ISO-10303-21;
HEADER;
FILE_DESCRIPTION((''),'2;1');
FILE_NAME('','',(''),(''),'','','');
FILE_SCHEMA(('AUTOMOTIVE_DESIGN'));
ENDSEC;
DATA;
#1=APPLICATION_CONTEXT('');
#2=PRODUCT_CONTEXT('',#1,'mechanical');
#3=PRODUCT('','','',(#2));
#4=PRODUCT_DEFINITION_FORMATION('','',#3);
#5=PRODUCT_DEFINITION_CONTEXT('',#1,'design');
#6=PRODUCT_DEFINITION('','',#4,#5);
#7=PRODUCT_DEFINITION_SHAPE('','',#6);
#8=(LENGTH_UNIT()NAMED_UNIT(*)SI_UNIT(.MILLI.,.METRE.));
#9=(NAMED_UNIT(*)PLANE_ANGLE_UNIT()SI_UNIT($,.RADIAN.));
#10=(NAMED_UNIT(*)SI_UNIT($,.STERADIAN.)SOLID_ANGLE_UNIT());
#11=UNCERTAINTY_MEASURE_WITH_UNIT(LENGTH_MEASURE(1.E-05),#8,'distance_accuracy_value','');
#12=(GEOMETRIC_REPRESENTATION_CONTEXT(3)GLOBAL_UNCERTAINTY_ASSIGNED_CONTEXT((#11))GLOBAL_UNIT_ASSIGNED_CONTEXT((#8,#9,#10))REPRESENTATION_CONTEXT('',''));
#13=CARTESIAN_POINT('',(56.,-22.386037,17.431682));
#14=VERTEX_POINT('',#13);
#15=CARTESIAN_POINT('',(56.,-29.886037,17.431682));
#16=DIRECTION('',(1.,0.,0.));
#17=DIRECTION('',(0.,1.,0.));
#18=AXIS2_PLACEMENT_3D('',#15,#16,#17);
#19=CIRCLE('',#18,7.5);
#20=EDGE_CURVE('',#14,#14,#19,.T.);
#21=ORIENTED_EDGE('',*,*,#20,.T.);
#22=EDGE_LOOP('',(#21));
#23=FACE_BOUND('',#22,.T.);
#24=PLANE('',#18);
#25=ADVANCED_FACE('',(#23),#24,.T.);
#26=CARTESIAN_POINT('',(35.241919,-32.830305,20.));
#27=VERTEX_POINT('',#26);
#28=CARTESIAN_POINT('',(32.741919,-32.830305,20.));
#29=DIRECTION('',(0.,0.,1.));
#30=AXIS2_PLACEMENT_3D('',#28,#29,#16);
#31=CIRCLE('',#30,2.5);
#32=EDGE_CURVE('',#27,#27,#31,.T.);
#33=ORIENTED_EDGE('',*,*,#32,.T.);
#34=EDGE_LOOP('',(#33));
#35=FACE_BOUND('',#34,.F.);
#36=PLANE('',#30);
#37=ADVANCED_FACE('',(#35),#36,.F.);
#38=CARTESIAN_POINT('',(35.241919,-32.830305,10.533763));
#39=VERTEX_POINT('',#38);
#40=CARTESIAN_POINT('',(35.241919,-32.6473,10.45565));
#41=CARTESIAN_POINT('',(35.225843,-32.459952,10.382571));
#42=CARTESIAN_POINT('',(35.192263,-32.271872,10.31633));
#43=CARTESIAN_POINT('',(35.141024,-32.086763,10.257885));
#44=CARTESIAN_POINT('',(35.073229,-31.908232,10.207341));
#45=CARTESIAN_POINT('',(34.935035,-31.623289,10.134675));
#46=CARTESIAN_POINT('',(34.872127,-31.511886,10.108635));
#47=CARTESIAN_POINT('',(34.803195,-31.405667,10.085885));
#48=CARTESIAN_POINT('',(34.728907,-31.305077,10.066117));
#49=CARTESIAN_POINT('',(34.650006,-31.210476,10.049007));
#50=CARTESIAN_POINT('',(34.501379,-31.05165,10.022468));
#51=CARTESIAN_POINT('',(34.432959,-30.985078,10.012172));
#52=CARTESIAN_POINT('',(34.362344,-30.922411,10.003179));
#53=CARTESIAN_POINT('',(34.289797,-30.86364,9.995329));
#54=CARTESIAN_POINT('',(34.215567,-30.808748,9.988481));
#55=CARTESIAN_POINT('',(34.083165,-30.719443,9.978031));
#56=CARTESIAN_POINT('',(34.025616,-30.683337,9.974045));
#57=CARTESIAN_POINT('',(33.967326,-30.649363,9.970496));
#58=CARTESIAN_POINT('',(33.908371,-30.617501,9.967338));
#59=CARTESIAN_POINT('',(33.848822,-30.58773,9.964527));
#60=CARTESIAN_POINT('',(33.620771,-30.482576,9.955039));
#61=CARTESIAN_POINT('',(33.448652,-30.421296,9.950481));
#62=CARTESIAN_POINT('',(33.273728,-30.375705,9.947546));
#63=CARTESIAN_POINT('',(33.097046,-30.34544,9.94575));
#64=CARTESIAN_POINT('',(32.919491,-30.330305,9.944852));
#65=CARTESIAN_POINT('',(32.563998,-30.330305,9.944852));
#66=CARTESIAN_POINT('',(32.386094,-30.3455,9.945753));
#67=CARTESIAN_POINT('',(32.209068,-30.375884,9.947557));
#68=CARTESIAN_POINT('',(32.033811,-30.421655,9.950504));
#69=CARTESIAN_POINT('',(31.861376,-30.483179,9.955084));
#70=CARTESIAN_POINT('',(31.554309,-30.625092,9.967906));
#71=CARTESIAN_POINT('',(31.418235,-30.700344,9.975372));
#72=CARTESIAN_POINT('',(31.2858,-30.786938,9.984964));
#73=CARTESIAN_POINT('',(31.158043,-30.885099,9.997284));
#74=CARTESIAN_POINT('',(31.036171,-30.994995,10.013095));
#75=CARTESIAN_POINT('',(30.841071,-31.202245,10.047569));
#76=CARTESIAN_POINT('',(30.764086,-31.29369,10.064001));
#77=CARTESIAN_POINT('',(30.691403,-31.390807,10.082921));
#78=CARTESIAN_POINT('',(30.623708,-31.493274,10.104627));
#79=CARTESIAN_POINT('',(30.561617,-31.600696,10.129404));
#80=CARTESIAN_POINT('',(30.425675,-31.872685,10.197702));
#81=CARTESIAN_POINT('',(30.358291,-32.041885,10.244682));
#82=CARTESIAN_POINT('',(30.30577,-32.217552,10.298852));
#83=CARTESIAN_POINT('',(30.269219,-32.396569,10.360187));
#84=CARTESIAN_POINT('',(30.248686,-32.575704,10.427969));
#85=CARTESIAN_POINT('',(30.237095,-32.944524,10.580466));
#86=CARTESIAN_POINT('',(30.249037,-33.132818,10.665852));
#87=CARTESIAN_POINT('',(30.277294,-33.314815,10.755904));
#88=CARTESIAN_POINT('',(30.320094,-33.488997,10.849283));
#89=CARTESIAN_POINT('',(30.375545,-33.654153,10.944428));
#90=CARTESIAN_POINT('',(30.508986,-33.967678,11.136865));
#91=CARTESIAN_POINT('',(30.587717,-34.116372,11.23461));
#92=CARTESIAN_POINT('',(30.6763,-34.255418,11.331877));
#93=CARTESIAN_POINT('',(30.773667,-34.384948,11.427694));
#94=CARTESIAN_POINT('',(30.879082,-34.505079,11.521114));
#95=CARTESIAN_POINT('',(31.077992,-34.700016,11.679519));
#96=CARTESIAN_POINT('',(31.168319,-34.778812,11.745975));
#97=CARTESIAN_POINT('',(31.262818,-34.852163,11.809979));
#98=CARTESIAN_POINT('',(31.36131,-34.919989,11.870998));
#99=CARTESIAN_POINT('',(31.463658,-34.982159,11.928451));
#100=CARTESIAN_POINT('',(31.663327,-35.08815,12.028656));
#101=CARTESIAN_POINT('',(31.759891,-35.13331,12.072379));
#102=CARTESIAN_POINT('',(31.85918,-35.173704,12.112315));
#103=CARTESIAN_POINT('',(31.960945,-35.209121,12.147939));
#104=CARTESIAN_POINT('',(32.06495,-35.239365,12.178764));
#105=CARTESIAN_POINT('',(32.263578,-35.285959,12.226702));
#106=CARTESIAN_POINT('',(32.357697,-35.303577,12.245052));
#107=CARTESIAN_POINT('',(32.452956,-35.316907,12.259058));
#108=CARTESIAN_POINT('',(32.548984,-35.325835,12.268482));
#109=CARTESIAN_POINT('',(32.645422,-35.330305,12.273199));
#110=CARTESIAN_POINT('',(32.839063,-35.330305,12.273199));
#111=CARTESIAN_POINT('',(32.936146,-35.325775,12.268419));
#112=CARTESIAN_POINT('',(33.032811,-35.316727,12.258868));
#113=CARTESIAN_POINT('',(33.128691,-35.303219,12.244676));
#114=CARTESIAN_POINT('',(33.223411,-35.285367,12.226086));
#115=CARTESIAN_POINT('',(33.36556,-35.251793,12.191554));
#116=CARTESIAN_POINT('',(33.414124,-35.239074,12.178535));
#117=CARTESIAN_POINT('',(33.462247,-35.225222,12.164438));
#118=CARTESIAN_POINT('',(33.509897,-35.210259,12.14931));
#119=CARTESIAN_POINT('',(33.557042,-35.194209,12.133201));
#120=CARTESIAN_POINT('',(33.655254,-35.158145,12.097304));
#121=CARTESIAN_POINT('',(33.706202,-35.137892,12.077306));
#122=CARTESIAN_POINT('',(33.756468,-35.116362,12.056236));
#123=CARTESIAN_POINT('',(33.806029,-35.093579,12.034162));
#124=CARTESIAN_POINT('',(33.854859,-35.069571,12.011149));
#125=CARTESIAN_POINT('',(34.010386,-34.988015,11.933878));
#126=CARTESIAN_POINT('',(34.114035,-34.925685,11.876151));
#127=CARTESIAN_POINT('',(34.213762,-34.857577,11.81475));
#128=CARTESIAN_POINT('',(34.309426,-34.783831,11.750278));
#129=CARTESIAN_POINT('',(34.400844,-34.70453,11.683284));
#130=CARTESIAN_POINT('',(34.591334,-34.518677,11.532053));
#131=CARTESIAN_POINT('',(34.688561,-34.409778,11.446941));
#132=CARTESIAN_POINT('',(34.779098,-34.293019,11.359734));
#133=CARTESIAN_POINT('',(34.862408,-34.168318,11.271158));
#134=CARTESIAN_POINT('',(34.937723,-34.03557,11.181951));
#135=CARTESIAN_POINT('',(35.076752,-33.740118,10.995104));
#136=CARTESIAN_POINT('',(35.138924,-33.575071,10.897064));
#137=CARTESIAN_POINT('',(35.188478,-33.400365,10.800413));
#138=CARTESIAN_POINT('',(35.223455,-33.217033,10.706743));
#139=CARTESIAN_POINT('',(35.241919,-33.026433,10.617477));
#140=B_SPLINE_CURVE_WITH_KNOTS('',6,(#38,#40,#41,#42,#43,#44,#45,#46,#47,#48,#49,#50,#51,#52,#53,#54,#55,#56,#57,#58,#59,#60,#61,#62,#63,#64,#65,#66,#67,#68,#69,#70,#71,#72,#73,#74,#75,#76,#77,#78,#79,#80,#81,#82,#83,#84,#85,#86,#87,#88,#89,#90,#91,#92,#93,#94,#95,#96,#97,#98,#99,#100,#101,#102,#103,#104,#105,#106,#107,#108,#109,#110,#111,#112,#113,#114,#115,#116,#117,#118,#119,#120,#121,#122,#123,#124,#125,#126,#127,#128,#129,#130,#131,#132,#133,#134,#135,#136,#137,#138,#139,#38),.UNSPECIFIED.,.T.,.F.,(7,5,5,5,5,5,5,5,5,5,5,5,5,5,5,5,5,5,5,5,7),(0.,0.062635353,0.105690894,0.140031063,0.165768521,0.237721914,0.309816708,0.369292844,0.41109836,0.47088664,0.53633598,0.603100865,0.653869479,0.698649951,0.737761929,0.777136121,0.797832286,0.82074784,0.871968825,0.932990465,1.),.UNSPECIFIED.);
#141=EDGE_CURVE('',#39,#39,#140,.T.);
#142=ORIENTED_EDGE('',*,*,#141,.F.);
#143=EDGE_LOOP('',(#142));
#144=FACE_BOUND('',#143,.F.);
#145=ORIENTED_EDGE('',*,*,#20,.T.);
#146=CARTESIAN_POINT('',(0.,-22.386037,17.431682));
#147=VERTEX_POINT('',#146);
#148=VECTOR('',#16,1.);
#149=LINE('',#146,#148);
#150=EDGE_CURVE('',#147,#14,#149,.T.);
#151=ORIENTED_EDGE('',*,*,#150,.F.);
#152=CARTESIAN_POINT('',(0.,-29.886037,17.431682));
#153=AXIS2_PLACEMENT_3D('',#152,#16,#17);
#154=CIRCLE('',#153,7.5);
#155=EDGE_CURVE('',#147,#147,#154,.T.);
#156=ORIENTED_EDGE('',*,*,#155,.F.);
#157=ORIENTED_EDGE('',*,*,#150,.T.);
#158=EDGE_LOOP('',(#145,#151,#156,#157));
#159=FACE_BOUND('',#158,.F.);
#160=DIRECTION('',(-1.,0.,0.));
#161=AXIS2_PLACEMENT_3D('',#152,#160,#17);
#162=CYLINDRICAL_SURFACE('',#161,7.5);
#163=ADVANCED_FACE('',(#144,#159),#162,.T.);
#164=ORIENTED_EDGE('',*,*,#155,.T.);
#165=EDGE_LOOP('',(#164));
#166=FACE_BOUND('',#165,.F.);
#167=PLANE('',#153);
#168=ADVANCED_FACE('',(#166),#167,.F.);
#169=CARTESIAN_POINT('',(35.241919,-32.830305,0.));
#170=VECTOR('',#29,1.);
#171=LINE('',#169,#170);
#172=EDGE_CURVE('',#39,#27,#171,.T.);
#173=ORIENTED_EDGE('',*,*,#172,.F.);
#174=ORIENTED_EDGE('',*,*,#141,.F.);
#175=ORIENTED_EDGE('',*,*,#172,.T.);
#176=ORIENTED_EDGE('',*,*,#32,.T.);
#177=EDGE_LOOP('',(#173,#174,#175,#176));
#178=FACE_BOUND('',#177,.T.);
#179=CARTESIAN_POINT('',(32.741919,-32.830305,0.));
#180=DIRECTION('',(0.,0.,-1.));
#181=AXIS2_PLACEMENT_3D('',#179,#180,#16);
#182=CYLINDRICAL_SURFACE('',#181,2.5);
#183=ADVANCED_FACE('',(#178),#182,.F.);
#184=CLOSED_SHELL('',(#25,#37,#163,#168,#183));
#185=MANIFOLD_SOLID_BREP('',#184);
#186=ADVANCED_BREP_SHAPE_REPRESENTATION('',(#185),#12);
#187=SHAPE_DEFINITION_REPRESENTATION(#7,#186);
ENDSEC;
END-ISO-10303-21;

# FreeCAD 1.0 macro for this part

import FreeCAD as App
import Part
import Sketcher

V = App.Vector

doc = App.newDocument("Part")
params = doc.addObject("Spreadsheet::Sheet", "Params")
for row, (alias, value) in enumerate([
    ("sketch1_diameter", "15 mm"),
    ("pad1_length", "56 mm"),
    ("sketch2_diameter", "5 mm"),
    ("pocket1_length", "20 mm"),
], start=1):
    params.set(f"A{row}", alias)
    params.set(f"B{row}", "=" + value)
    params.setAlias(f"B{row}", alias)

body = doc.addObject("PartDesign::Body", "Body")

# Sketch on YZ plane
sketch1 = doc.addObject("Sketcher::SketchObject", "Sketch")
body.addObject(sketch1)
sketch1.AttachmentSupport = (doc.YZ_Plane, [""])
sketch1.MapMode = "FlatFace"
sketch1.addGeometry(Part.Circle(V(-29.886037, 17.431682, 0), V(0, 0, 1), 7.5), False)
sketch1.addConstraint(Sketcher.Constraint("Diameter", 0, 15.0))
sketch1.addConstraint(Sketcher.Constraint("DistanceY", -1, 1, 0, 3, 17.431682))
sketch1.addConstraint(Sketcher.Constraint("DistanceX", 0, 3, -1, 1, 29.886037))
sketch1.setExpression("Constraints[0]", "Params.sketch1_diameter")
pad1 = doc.addObject("PartDesign::Pad", "Pad")
body.addObject(pad1)
pad1.Profile = sketch1
pad1.setExpression("Length", "Params.pad1_length")

# Sketch on XY plane
sketch2 = doc.addObject("Sketcher::SketchObject", "Sketch001")
body.addObject(sketch2)
sketch2.AttachmentSupport = (doc.XY_Plane, [""])
sketch2.MapMode = "FlatFace"
sketch2.addGeometry(Part.Circle(V(32.741919, -32.830305, 0), V(0, 0, 1), 2.5), False)
sketch2.addConstraint(Sketcher.Constraint("Diameter", 0, 5.0))
sketch2.addConstraint(Sketcher.Constraint("DistanceX", -1, 1, 0, 3, 32.741919))
sketch2.addConstraint(Sketcher.Constraint("DistanceY", 0, 3, -1, 1, 32.830305))
sketch2.setExpression("Constraints[0]", "Params.sketch2_diameter")
pocket1 = doc.addObject("PartDesign::Pocket", "Pocket")
body.addObject(pocket1)
pocket1.Profile = sketch2
pocket1.setExpression("Length", "Params.pocket1_length")
pocket1.Reversed = True

doc.recompute()
